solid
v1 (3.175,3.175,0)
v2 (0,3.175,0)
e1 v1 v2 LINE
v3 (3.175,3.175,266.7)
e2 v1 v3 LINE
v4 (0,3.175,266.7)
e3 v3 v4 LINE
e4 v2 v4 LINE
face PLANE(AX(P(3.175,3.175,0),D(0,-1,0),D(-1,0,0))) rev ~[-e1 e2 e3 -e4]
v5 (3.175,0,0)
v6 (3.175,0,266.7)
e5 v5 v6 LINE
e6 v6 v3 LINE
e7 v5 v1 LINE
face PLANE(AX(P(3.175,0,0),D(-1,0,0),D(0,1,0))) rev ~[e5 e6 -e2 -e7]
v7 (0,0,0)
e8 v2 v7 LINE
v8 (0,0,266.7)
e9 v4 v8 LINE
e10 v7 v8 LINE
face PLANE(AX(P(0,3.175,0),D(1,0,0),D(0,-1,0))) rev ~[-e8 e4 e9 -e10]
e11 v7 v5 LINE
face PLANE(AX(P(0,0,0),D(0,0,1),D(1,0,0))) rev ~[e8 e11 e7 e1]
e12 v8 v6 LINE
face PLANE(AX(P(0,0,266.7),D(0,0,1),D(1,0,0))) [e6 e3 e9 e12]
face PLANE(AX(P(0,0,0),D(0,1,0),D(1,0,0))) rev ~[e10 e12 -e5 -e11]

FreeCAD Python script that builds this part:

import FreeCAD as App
import Part
import Sketcher

V = App.Vector
Q = App.Units.Quantity


def add_polygon(sketch, points):
    """Adds a closed chain of lines whose ends are joined by coincident constraints."""
    first, n = sketch.GeometryCount, len(points)
    for a, b in zip(points, points[1:] + points[:1]):
        sketch.addGeometry(Part.LineSegment(App.Vector(*a, 0), App.Vector(*b, 0)), False)
    for i in range(n):
        sketch.addConstraint(Sketcher.Constraint("Coincident", first + i, 2, first + (i + 1) % n, 1))

doc = App.newDocument("Part")
body = doc.addObject("PartDesign::Body", "Body")

# Sketch on XY plane
sketch1 = body.newObject("Sketcher::SketchObject", "Sketch")
sketch1.AttachmentSupport = (doc.getObject("XY_Plane"), [""])
sketch1.MapMode = "FlatFace"
add_polygon(sketch1, [(0, 3.2), (0, 0), (3.2, 0), (3.2, 3.2)])  # lines 0-3
sketch1.addConstraint([
    Sketcher.Constraint("Vertical", 0),
    Sketcher.Constraint("Horizontal", 1),
    Sketcher.Constraint("Vertical", 2),
    Sketcher.Constraint("Horizontal", 3),
    Sketcher.Constraint("Coincident", 0, 2, -1, 1),
    Sketcher.Constraint("Equal", 3, 0),
    Sketcher.Constraint("DistanceX", 1, 1, 1, 2, Q("0.125 in")),
])
pad1 = body.newObject("PartDesign::Pad", "Pad")
pad1.Profile = sketch1
pad1.Length = Q("10.5 in")

doc.recompute()
